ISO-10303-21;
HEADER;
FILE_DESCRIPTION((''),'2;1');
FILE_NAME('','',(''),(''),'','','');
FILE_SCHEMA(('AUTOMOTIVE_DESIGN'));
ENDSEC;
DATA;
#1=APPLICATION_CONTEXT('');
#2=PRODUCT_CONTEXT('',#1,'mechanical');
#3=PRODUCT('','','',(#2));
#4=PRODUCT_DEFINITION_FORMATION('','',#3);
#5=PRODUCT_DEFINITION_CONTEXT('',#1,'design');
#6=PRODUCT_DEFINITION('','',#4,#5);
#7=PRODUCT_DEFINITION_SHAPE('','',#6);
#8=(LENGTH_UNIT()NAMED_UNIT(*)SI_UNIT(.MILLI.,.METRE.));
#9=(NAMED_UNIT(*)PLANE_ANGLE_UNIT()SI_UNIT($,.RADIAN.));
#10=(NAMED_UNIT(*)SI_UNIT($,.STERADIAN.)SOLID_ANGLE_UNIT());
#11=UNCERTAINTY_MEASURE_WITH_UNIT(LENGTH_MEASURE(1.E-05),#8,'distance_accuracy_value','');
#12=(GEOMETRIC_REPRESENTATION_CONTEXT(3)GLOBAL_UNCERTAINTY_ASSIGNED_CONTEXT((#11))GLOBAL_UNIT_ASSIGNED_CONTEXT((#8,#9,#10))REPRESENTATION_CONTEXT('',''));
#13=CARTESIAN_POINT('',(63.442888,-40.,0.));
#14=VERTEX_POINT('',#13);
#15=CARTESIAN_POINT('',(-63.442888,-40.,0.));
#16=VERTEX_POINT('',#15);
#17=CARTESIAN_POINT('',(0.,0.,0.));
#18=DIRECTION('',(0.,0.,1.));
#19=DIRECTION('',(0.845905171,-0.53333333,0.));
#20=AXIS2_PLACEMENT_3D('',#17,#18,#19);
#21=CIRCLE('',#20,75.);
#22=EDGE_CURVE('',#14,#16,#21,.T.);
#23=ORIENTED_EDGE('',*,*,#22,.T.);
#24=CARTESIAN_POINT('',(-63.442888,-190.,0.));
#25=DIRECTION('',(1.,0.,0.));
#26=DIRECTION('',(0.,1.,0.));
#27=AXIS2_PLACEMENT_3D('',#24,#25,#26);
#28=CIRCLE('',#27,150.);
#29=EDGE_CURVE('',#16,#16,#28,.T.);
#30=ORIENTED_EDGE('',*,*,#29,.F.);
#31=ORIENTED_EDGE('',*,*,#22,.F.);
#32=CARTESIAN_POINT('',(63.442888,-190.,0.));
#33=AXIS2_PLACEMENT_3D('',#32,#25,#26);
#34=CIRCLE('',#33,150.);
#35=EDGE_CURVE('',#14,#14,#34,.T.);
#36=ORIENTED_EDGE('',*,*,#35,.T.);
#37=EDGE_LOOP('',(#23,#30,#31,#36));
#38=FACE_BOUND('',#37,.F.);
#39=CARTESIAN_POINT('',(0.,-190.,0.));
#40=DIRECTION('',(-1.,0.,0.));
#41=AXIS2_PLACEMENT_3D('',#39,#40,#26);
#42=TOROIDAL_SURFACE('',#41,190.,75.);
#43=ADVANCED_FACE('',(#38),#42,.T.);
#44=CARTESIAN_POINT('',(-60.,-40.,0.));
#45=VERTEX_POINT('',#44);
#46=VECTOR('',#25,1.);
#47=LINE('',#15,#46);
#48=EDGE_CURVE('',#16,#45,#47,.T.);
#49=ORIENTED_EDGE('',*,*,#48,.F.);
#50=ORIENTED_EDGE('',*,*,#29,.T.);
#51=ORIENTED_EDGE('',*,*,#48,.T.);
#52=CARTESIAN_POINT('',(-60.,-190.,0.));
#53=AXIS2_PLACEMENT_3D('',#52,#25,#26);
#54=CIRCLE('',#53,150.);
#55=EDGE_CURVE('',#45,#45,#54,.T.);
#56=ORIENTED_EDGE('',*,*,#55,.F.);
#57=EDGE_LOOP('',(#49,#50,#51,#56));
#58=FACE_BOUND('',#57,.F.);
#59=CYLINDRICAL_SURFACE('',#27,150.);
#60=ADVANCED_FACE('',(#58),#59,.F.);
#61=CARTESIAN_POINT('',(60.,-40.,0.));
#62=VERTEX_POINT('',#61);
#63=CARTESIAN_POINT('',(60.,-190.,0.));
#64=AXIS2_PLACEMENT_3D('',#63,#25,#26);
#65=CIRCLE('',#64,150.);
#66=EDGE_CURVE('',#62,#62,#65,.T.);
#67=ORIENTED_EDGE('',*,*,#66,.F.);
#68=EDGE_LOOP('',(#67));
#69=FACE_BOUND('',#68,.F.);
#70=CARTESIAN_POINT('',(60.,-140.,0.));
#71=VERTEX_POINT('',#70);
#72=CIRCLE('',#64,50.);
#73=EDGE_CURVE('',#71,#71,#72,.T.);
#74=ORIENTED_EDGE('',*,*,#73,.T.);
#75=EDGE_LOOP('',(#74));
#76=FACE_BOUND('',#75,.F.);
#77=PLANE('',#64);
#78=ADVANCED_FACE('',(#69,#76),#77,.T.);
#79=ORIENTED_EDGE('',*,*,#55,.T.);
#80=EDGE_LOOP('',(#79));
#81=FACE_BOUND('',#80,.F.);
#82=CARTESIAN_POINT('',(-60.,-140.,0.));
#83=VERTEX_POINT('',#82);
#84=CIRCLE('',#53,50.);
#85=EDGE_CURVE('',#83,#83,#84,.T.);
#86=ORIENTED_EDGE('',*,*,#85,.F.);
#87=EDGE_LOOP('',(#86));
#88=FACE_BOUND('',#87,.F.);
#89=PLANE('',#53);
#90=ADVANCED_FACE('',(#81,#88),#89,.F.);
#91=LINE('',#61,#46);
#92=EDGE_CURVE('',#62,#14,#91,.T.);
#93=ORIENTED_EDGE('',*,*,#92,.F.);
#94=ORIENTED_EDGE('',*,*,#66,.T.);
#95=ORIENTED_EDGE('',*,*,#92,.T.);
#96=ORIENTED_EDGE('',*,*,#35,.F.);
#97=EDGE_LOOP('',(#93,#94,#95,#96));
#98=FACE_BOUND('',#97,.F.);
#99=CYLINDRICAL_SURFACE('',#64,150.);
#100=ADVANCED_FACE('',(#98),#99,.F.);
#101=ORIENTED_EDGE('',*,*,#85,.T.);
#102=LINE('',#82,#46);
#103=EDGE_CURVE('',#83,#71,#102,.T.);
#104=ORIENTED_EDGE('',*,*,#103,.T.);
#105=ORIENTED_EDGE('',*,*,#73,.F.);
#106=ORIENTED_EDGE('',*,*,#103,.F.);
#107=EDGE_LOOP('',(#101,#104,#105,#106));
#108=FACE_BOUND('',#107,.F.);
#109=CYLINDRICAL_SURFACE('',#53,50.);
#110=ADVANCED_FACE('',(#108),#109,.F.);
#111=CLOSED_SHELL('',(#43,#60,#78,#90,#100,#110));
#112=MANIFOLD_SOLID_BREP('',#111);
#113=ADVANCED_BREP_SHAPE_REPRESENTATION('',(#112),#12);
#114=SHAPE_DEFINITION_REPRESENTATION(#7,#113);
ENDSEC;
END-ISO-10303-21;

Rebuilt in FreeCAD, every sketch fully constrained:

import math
import FreeCAD as App
import Part
import Sketcher

V = App.Vector
Q = App.Units.Quantity

doc = App.newDocument("Part")
body = doc.addObject("PartDesign::Body", "Body")

# Sketch on XY plane
sketch1 = doc.addObject("Sketcher::SketchObject", "Sketch")
body.addObject(sketch1)
sketch1.AttachmentSupport = (doc.XY_Plane, [""])
sketch1.MapMode = "FlatFace"
sketch1.addGeometry(Part.LineSegment(V(60, -40, 0), V(63.4, -40, 0)), False)
sketch1.addGeometry(Part.ArcOfCircle(Part.Circle(V(0, 0, 0), V(0, 0, 1), 75), math.radians(-32), math.radians(212)), False)
sketch1.addGeometry(Part.LineSegment(V(-63.4, -40, 0), V(-60, -40, 0)), False)
sketch1.addGeometry(Part.LineSegment(V(-60, -40, 0), V(-60, -140, 0)), False)
sketch1.addGeometry(Part.LineSegment(V(-60, -140, 0), V(60, -140, 0)), False)
sketch1.addGeometry(Part.LineSegment(V(60, -140, 0), V(60, -40, 0)), False)
sketch1.addGeometry(Part.LineSegment(V(-63.4, -190, 0), V(63.4, -190, 0)), True)  # axis
sketch1.addConstraint(Sketcher.Constraint("Coincident", 0, 2, 1, 1))
sketch1.addConstraint(Sketcher.Constraint("Coincident", 1, 2, 2, 1))
sketch1.addConstraint(Sketcher.Constraint("Coincident", 2, 2, 3, 1))
sketch1.addConstraint(Sketcher.Constraint("Coincident", 3, 2, 4, 1))
sketch1.addConstraint(Sketcher.Constraint("Coincident", 4, 2, 5, 1))
sketch1.addConstraint(Sketcher.Constraint("Coincident", 5, 2, 0, 1))
sketch1.addConstraint(Sketcher.Constraint("Horizontal", 0))
sketch1.addConstraint(Sketcher.Constraint("Horizontal", 2))
sketch1.addConstraint(Sketcher.Constraint("Vertical", 3))
sketch1.addConstraint(Sketcher.Constraint("Horizontal", 4))
sketch1.addConstraint(Sketcher.Constraint("Vertical", 5))
sketch1.addConstraint(Sketcher.Constraint("Horizontal", 6))
sketch1.addConstraint(Sketcher.Constraint("Coincident", 1, 3, -1, 1))
sketch1.addConstraint(Sketcher.Constraint("Symmetric", 2, 2, 5, 2, -2))
sketch1.addConstraint(Sketcher.Constraint("Vertical", 1, 2, 6, 1))
sketch1.addConstraint(Sketcher.Constraint("Vertical", 0, 2, 6, 2))
sketch1.addConstraint(Sketcher.Constraint("Radius", 1, Q("75 mm")))
sketch1.addConstraint(Sketcher.Constraint("DistanceX", 4, 1, 4, 2, Q("120 mm")))
sketch1.addConstraint(Sketcher.Constraint("DistanceY", 3, 2, 3, 1, Q("100 mm")))
sketch1.addConstraint(Sketcher.Constraint("DistanceY", 0, 2, -1, 1, Q("40 mm")))
sketch1.addConstraint(Sketcher.Constraint("DistanceY", 6, 1, -1, 1, Q("190 mm")))
revolution = doc.addObject("PartDesign::Revolution", "Revolution")
body.addObject(revolution)
revolution.Profile = sketch1
revolution.ReferenceAxis = (sketch1, ["Axis0"])
revolution.Angle = 360

doc.recompute()
